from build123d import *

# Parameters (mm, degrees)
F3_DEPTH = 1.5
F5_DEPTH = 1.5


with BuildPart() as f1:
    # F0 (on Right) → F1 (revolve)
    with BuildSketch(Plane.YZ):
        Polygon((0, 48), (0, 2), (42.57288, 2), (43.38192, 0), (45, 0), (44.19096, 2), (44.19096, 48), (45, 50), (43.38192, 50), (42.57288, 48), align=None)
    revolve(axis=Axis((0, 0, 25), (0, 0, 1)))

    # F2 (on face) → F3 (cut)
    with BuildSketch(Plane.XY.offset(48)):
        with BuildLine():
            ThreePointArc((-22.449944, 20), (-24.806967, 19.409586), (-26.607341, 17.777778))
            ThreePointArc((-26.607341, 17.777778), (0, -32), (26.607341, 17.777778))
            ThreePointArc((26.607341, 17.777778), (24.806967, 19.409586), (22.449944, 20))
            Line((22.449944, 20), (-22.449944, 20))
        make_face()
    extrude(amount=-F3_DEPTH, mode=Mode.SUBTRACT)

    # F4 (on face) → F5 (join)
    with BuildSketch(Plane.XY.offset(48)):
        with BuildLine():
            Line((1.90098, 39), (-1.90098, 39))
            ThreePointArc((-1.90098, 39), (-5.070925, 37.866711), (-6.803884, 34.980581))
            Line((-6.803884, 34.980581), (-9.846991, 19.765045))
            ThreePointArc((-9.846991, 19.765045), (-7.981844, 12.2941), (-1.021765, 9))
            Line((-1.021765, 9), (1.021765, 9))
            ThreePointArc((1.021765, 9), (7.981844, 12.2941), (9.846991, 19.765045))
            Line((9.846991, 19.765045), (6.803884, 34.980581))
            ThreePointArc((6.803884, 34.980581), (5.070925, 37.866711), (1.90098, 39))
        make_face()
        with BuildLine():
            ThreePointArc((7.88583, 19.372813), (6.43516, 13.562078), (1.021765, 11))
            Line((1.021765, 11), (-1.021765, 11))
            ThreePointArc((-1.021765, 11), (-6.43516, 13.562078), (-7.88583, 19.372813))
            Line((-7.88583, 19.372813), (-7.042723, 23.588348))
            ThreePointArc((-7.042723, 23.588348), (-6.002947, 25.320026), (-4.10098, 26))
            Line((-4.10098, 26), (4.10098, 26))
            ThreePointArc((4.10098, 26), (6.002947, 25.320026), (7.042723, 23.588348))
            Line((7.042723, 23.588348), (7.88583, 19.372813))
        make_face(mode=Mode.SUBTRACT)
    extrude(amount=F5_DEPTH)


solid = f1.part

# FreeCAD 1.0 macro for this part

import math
import FreeCAD as App
import Part
import Sketcher
from FreeCAD import Vector

doc = App.newDocument("Part")
params = doc.addObject("Spreadsheet::Sheet", "Params")
for row, (alias, value) in enumerate([
    ("sketch1_height", "46 mm"),
    ("revolution_angle", "360 deg"),
    ("sketch2_radius", "32 mm"),
    ("pocket1_length", "1.5 mm"),
    ("sketch3_radius", "5 mm"),
    ("sketch3_radius2", "9 mm"),
    ("sketch3_radius3", "7.000001 mm"),
    ("pad1_length", "1.5 mm"),
], start=1):
    params.set(f"A{row}", alias)
    params.set(f"B{row}", "=" + value)
    params.setAlias(f"B{row}", alias)

body = doc.addObject("PartDesign::Body", "Body")

sketch1 = body.newObject("Sketcher::SketchObject", "Sketch")
sketch1.AttachmentSupport = (doc.getObject("YZ_Plane"), [""])
sketch1.MapMode = "FlatFace"
sketch1.addGeometry([
    Part.LineSegment(Vector(0, 48, 0), Vector(0, 2, 0)),
    Part.LineSegment(Vector(0, 2, 0), Vector(42.6, 2, 0)),
    Part.LineSegment(Vector(42.6, 2, 0), Vector(43.4, 0, 0)),
    Part.LineSegment(Vector(43.4, 0, 0), Vector(45, 0, 0)),
    Part.LineSegment(Vector(45, 0, 0), Vector(44.2, 2, 0)),
    Part.LineSegment(Vector(44.2, 2, 0), Vector(44.2, 48, 0)),
    Part.LineSegment(Vector(44.2, 48, 0), Vector(45, 50, 0)),
    Part.LineSegment(Vector(45, 50, 0), Vector(43.4, 50, 0)),
    Part.LineSegment(Vector(43.4, 50, 0), Vector(42.6, 48, 0)),
    Part.LineSegment(Vector(42.6, 48, 0), Vector(0, 48, 0)),
], False)
sketch1.addConstraint([
    Sketcher.Constraint("Coincident", 0, 2, 1, 1),
    Sketcher.Constraint("Coincident", 1, 2, 2, 1),
    Sketcher.Constraint("Coincident", 2, 2, 3, 1),
    Sketcher.Constraint("Coincident", 3, 2, 4, 1),
    Sketcher.Constraint("Coincident", 4, 2, 5, 1),
    Sketcher.Constraint("Coincident", 5, 2, 6, 1),
    Sketcher.Constraint("Coincident", 6, 2, 7, 1),
    Sketcher.Constraint("Coincident", 7, 2, 8, 1),
    Sketcher.Constraint("Coincident", 8, 2, 9, 1),
    Sketcher.Constraint("Coincident", 9, 2, 0, 1),
    Sketcher.Constraint("Vertical", 0),
    Sketcher.Constraint("Horizontal", 1),
    Sketcher.Constraint("Horizontal", 3),
    Sketcher.Constraint("Vertical", 5),
    Sketcher.Constraint("Horizontal", 7),
    Sketcher.Constraint("Horizontal", 9),
    Sketcher.Constraint("PointOnObject", 0, 2, -2),
    Sketcher.Constraint("PointOnObject", 2, 2, -1),
    Sketcher.Constraint("Parallel", 2, 4),
    Sketcher.Constraint("Parallel", 6, 8),
    Sketcher.Constraint("Horizontal", 1, 2, 4, 2),
    Sketcher.Constraint("Horizontal", 5, 2, 8, 2),
    Sketcher.Constraint("Vertical", 3, 2, 6, 2),
    Sketcher.Constraint("Vertical", 2, 2, 7, 2),
    Sketcher.Constraint("Equal", 4, 6),
    Sketcher.Constraint("DistanceY", 0, 2, 0, 1, 46.0),
    Sketcher.Constraint("DistanceY", -1, 1, 0, 2, 2.0),
    Sketcher.Constraint("DistanceX", -1, 1, 3, 2, 45.0),
    Sketcher.Constraint("DistanceX", 1, 1, 1, 2, 42.57288),
    Sketcher.Constraint("DistanceX", 3, 1, 3, 2, 1.61808),
])
sketch1.setExpression("Constraints[25]", "Params.sketch1_height")
revolution = body.newObject("PartDesign::Revolution", "Revolution")
revolution.Profile = sketch1
revolution.ReferenceAxis = (sketch1, ["V_Axis"])
revolution.setExpression("Angle", "Params.revolution_angle")

sketch2 = body.newObject("Sketcher::SketchObject", "Sketch001")
sketch2.AttachmentSupport = (doc.getObject("XY_Plane"), [""])
sketch2.MapMode = "FlatFace"
sketch2.AttachmentOffset = App.Placement(Vector(0, 0, 48), App.Rotation())
sketch2.addGeometry([
    Part.ArcOfCircle(Part.Circle(Vector(-22.4, 15, 0), Vector(0, 0, 1), 5), math.radians(90), math.radians(146)),
    Part.ArcOfCircle(Part.Circle(Vector(0, 0, 0), Vector(0, 0, 1), 32), math.radians(146), math.radians(394)),
    Part.ArcOfCircle(Part.Circle(Vector(22.4, 15, 0), Vector(0, 0, 1), 5), math.radians(34), math.radians(90)),
    Part.LineSegment(Vector(22.4, 20, 0), Vector(-22.4, 20, 0)),
], False)
sketch2.addConstraint([
    Sketcher.Constraint("Tangent", 0, 2, 1, 1),
    Sketcher.Constraint("Tangent", 1, 2, 2, 1),
    Sketcher.Constraint("Tangent", 2, 2, 3, 1),
    Sketcher.Constraint("Tangent", 3, 2, 0, 1),
    Sketcher.Constraint("Horizontal", 3),
    Sketcher.Constraint("Coincident", 1, 3, -1, 1),
    Sketcher.Constraint("Equal", 0, 2),
    Sketcher.Constraint("Radius", 1, 32.0),
    Sketcher.Constraint("DistanceY", -1, 1, 2, 2, 20.0),
    Sketcher.Constraint("Radius", 0, 4.999996),
])
sketch2.setExpression("Constraints[7]", "Params.sketch2_radius")
pocket1 = body.newObject("PartDesign::Pocket", "Pocket")
pocket1.Profile = sketch2
pocket1.setExpression("Length", "Params.pocket1_length")

sketch3 = body.newObject("Sketcher::SketchObject", "Sketch002")
sketch3.AttachmentSupport = (doc.getObject("XY_Plane"), [""])
sketch3.MapMode = "FlatFace"
sketch3.AttachmentOffset = App.Placement(Vector(0, 0, 48), App.Rotation())
sketch3.addGeometry([
    Part.LineSegment(Vector(1.9, 39, 0), Vector(-1.9, 39, 0)),
    Part.ArcOfCircle(Part.Circle(Vector(-1.9, 34, 0), Vector(0, 0, 1), 5), math.radians(90), math.radians(169)),
    Part.LineSegment(Vector(-6.8, 35, 0), Vector(-9.8, 19.8, 0)),
    Part.ArcOfCircle(Part.Circle(Vector(-1, 18, 0), Vector(0, 0, 1), 9), math.radians(169), math.radians(270)),
    Part.LineSegment(Vector(-1, 9, 0), Vector(1, 9, 0)),
    Part.ArcOfCircle(Part.Circle(Vector(1, 18, 0), Vector(0, 0, 1), 9), math.radians(-90), math.radians(11)),
    Part.LineSegment(Vector(9.8, 19.8, 0), Vector(6.8, 35, 0)),
    Part.ArcOfCircle(Part.Circle(Vector(1.9, 34, 0), Vector(0, 0, 1), 5), math.radians(11), math.radians(90)),
    Part.LineSegment(Vector(7, 23.6, 0), Vector(7.9, 19.4, 0)),
    Part.ArcOfCircle(Part.Circle(Vector(1, 18, 0), Vector(0, 0, 1), 7), math.radians(-90), math.radians(11)),
    Part.LineSegment(Vector(1, 11, 0), Vector(-1, 11, 0)),
    Part.ArcOfCircle(Part.Circle(Vector(-1, 18, 0), Vector(0, 0, 1), 7), math.radians(169), math.radians(270)),
    Part.LineSegment(Vector(-7.9, 19.4, 0), Vector(-7, 23.6, 0)),
    Part.ArcOfCircle(Part.Circle(Vector(-4.1, 23, 0), Vector(0, 0, 1), 3), math.radians(90), math.radians(169)),
    Part.LineSegment(Vector(-4.1, 26, 0), Vector(4.1, 26, 0)),
    Part.ArcOfCircle(Part.Circle(Vector(4.1, 23, 0), Vector(0, 0, 1), 3), math.radians(11), math.radians(90)),
], False)
sketch3.addConstraint([
    Sketcher.Constraint("Tangent", 0, 2, 1, 1),
    Sketcher.Constraint("Tangent", 1, 2, 2, 1),
    Sketcher.Constraint("Tangent", 2, 2, 3, 1),
    Sketcher.Constraint("Tangent", 3, 2, 4, 1),
    Sketcher.Constraint("Tangent", 4, 2, 5, 1),
    Sketcher.Constraint("Tangent", 5, 2, 6, 1),
    Sketcher.Constraint("Tangent", 6, 2, 7, 1),
    Sketcher.Constraint("Tangent", 7, 2, 0, 1),
    Sketcher.Constraint("Tangent", 8, 2, 9, 2),
    Sketcher.Constraint("Tangent", 9, 1, 10, 1),
    Sketcher.Constraint("Tangent", 10, 2, 11, 2),
    Sketcher.Constraint("Tangent", 11, 1, 12, 1),
    Sketcher.Constraint("Tangent", 12, 2, 13, 2),
    Sketcher.Constraint("Tangent", 13, 1, 14, 1),
    Sketcher.Constraint("Tangent", 14, 2, 15, 2),
    Sketcher.Constraint("Tangent", 15, 1, 8, 1),
    Sketcher.Constraint("Horizontal", 0),
    Sketcher.Constraint("Horizontal", 4),
    Sketcher.Constraint("Horizontal", 10),
    Sketcher.Constraint("Horizontal", 14),
    Sketcher.Constraint("Coincident", 9, 3, 5, 3),
    Sketcher.Constraint("Coincident", 11, 3, 3, 3),
    Sketcher.Constraint("Equal", 3, 5),
    Sketcher.Constraint("Equal", 1, 7),
    Sketcher.Constraint("Equal", 13, 15),
    Sketcher.Constraint("Symmetric", 2, 2, 5, 2, -2),
    Sketcher.Constraint("Parallel", 6, 8),
    Sketcher.Constraint("Parallel", 2, 12),
    Sketcher.Constraint("Radius", 1, 5.0),
    Sketcher.Constraint("Radius", 3, 9.0),
    Sketcher.Constraint("Radius", 9, 7.000001),
    Sketcher.Constraint("DistanceY", -1, 1, 1, 3, 34.0),
    Sketcher.Constraint("DistanceY", -1, 1, 3, 3, 18.0),
    Sketcher.Constraint("DistanceY", -1, 1, 13, 1, 26.0),
    Sketcher.Constraint("DistanceX", 13, 3, 0, 2, 2.199999),
    Sketcher.Constraint("Radius", 13, 3.000002),
    Sketcher.Constraint("DistanceX", 0, 2, 0, 1, 3.80196),
])
sketch3.setExpression("Constraints[28]", "Params.sketch3_radius")
sketch3.setExpression("Constraints[29]", "Params.sketch3_radius2")
sketch3.setExpression("Constraints[30]", "Params.sketch3_radius3")
pad1 = body.newObject("PartDesign::Pad", "Pad")
pad1.Profile = sketch3
pad1.setExpression("Length", "Params.pad1_length")

doc.recompute()
